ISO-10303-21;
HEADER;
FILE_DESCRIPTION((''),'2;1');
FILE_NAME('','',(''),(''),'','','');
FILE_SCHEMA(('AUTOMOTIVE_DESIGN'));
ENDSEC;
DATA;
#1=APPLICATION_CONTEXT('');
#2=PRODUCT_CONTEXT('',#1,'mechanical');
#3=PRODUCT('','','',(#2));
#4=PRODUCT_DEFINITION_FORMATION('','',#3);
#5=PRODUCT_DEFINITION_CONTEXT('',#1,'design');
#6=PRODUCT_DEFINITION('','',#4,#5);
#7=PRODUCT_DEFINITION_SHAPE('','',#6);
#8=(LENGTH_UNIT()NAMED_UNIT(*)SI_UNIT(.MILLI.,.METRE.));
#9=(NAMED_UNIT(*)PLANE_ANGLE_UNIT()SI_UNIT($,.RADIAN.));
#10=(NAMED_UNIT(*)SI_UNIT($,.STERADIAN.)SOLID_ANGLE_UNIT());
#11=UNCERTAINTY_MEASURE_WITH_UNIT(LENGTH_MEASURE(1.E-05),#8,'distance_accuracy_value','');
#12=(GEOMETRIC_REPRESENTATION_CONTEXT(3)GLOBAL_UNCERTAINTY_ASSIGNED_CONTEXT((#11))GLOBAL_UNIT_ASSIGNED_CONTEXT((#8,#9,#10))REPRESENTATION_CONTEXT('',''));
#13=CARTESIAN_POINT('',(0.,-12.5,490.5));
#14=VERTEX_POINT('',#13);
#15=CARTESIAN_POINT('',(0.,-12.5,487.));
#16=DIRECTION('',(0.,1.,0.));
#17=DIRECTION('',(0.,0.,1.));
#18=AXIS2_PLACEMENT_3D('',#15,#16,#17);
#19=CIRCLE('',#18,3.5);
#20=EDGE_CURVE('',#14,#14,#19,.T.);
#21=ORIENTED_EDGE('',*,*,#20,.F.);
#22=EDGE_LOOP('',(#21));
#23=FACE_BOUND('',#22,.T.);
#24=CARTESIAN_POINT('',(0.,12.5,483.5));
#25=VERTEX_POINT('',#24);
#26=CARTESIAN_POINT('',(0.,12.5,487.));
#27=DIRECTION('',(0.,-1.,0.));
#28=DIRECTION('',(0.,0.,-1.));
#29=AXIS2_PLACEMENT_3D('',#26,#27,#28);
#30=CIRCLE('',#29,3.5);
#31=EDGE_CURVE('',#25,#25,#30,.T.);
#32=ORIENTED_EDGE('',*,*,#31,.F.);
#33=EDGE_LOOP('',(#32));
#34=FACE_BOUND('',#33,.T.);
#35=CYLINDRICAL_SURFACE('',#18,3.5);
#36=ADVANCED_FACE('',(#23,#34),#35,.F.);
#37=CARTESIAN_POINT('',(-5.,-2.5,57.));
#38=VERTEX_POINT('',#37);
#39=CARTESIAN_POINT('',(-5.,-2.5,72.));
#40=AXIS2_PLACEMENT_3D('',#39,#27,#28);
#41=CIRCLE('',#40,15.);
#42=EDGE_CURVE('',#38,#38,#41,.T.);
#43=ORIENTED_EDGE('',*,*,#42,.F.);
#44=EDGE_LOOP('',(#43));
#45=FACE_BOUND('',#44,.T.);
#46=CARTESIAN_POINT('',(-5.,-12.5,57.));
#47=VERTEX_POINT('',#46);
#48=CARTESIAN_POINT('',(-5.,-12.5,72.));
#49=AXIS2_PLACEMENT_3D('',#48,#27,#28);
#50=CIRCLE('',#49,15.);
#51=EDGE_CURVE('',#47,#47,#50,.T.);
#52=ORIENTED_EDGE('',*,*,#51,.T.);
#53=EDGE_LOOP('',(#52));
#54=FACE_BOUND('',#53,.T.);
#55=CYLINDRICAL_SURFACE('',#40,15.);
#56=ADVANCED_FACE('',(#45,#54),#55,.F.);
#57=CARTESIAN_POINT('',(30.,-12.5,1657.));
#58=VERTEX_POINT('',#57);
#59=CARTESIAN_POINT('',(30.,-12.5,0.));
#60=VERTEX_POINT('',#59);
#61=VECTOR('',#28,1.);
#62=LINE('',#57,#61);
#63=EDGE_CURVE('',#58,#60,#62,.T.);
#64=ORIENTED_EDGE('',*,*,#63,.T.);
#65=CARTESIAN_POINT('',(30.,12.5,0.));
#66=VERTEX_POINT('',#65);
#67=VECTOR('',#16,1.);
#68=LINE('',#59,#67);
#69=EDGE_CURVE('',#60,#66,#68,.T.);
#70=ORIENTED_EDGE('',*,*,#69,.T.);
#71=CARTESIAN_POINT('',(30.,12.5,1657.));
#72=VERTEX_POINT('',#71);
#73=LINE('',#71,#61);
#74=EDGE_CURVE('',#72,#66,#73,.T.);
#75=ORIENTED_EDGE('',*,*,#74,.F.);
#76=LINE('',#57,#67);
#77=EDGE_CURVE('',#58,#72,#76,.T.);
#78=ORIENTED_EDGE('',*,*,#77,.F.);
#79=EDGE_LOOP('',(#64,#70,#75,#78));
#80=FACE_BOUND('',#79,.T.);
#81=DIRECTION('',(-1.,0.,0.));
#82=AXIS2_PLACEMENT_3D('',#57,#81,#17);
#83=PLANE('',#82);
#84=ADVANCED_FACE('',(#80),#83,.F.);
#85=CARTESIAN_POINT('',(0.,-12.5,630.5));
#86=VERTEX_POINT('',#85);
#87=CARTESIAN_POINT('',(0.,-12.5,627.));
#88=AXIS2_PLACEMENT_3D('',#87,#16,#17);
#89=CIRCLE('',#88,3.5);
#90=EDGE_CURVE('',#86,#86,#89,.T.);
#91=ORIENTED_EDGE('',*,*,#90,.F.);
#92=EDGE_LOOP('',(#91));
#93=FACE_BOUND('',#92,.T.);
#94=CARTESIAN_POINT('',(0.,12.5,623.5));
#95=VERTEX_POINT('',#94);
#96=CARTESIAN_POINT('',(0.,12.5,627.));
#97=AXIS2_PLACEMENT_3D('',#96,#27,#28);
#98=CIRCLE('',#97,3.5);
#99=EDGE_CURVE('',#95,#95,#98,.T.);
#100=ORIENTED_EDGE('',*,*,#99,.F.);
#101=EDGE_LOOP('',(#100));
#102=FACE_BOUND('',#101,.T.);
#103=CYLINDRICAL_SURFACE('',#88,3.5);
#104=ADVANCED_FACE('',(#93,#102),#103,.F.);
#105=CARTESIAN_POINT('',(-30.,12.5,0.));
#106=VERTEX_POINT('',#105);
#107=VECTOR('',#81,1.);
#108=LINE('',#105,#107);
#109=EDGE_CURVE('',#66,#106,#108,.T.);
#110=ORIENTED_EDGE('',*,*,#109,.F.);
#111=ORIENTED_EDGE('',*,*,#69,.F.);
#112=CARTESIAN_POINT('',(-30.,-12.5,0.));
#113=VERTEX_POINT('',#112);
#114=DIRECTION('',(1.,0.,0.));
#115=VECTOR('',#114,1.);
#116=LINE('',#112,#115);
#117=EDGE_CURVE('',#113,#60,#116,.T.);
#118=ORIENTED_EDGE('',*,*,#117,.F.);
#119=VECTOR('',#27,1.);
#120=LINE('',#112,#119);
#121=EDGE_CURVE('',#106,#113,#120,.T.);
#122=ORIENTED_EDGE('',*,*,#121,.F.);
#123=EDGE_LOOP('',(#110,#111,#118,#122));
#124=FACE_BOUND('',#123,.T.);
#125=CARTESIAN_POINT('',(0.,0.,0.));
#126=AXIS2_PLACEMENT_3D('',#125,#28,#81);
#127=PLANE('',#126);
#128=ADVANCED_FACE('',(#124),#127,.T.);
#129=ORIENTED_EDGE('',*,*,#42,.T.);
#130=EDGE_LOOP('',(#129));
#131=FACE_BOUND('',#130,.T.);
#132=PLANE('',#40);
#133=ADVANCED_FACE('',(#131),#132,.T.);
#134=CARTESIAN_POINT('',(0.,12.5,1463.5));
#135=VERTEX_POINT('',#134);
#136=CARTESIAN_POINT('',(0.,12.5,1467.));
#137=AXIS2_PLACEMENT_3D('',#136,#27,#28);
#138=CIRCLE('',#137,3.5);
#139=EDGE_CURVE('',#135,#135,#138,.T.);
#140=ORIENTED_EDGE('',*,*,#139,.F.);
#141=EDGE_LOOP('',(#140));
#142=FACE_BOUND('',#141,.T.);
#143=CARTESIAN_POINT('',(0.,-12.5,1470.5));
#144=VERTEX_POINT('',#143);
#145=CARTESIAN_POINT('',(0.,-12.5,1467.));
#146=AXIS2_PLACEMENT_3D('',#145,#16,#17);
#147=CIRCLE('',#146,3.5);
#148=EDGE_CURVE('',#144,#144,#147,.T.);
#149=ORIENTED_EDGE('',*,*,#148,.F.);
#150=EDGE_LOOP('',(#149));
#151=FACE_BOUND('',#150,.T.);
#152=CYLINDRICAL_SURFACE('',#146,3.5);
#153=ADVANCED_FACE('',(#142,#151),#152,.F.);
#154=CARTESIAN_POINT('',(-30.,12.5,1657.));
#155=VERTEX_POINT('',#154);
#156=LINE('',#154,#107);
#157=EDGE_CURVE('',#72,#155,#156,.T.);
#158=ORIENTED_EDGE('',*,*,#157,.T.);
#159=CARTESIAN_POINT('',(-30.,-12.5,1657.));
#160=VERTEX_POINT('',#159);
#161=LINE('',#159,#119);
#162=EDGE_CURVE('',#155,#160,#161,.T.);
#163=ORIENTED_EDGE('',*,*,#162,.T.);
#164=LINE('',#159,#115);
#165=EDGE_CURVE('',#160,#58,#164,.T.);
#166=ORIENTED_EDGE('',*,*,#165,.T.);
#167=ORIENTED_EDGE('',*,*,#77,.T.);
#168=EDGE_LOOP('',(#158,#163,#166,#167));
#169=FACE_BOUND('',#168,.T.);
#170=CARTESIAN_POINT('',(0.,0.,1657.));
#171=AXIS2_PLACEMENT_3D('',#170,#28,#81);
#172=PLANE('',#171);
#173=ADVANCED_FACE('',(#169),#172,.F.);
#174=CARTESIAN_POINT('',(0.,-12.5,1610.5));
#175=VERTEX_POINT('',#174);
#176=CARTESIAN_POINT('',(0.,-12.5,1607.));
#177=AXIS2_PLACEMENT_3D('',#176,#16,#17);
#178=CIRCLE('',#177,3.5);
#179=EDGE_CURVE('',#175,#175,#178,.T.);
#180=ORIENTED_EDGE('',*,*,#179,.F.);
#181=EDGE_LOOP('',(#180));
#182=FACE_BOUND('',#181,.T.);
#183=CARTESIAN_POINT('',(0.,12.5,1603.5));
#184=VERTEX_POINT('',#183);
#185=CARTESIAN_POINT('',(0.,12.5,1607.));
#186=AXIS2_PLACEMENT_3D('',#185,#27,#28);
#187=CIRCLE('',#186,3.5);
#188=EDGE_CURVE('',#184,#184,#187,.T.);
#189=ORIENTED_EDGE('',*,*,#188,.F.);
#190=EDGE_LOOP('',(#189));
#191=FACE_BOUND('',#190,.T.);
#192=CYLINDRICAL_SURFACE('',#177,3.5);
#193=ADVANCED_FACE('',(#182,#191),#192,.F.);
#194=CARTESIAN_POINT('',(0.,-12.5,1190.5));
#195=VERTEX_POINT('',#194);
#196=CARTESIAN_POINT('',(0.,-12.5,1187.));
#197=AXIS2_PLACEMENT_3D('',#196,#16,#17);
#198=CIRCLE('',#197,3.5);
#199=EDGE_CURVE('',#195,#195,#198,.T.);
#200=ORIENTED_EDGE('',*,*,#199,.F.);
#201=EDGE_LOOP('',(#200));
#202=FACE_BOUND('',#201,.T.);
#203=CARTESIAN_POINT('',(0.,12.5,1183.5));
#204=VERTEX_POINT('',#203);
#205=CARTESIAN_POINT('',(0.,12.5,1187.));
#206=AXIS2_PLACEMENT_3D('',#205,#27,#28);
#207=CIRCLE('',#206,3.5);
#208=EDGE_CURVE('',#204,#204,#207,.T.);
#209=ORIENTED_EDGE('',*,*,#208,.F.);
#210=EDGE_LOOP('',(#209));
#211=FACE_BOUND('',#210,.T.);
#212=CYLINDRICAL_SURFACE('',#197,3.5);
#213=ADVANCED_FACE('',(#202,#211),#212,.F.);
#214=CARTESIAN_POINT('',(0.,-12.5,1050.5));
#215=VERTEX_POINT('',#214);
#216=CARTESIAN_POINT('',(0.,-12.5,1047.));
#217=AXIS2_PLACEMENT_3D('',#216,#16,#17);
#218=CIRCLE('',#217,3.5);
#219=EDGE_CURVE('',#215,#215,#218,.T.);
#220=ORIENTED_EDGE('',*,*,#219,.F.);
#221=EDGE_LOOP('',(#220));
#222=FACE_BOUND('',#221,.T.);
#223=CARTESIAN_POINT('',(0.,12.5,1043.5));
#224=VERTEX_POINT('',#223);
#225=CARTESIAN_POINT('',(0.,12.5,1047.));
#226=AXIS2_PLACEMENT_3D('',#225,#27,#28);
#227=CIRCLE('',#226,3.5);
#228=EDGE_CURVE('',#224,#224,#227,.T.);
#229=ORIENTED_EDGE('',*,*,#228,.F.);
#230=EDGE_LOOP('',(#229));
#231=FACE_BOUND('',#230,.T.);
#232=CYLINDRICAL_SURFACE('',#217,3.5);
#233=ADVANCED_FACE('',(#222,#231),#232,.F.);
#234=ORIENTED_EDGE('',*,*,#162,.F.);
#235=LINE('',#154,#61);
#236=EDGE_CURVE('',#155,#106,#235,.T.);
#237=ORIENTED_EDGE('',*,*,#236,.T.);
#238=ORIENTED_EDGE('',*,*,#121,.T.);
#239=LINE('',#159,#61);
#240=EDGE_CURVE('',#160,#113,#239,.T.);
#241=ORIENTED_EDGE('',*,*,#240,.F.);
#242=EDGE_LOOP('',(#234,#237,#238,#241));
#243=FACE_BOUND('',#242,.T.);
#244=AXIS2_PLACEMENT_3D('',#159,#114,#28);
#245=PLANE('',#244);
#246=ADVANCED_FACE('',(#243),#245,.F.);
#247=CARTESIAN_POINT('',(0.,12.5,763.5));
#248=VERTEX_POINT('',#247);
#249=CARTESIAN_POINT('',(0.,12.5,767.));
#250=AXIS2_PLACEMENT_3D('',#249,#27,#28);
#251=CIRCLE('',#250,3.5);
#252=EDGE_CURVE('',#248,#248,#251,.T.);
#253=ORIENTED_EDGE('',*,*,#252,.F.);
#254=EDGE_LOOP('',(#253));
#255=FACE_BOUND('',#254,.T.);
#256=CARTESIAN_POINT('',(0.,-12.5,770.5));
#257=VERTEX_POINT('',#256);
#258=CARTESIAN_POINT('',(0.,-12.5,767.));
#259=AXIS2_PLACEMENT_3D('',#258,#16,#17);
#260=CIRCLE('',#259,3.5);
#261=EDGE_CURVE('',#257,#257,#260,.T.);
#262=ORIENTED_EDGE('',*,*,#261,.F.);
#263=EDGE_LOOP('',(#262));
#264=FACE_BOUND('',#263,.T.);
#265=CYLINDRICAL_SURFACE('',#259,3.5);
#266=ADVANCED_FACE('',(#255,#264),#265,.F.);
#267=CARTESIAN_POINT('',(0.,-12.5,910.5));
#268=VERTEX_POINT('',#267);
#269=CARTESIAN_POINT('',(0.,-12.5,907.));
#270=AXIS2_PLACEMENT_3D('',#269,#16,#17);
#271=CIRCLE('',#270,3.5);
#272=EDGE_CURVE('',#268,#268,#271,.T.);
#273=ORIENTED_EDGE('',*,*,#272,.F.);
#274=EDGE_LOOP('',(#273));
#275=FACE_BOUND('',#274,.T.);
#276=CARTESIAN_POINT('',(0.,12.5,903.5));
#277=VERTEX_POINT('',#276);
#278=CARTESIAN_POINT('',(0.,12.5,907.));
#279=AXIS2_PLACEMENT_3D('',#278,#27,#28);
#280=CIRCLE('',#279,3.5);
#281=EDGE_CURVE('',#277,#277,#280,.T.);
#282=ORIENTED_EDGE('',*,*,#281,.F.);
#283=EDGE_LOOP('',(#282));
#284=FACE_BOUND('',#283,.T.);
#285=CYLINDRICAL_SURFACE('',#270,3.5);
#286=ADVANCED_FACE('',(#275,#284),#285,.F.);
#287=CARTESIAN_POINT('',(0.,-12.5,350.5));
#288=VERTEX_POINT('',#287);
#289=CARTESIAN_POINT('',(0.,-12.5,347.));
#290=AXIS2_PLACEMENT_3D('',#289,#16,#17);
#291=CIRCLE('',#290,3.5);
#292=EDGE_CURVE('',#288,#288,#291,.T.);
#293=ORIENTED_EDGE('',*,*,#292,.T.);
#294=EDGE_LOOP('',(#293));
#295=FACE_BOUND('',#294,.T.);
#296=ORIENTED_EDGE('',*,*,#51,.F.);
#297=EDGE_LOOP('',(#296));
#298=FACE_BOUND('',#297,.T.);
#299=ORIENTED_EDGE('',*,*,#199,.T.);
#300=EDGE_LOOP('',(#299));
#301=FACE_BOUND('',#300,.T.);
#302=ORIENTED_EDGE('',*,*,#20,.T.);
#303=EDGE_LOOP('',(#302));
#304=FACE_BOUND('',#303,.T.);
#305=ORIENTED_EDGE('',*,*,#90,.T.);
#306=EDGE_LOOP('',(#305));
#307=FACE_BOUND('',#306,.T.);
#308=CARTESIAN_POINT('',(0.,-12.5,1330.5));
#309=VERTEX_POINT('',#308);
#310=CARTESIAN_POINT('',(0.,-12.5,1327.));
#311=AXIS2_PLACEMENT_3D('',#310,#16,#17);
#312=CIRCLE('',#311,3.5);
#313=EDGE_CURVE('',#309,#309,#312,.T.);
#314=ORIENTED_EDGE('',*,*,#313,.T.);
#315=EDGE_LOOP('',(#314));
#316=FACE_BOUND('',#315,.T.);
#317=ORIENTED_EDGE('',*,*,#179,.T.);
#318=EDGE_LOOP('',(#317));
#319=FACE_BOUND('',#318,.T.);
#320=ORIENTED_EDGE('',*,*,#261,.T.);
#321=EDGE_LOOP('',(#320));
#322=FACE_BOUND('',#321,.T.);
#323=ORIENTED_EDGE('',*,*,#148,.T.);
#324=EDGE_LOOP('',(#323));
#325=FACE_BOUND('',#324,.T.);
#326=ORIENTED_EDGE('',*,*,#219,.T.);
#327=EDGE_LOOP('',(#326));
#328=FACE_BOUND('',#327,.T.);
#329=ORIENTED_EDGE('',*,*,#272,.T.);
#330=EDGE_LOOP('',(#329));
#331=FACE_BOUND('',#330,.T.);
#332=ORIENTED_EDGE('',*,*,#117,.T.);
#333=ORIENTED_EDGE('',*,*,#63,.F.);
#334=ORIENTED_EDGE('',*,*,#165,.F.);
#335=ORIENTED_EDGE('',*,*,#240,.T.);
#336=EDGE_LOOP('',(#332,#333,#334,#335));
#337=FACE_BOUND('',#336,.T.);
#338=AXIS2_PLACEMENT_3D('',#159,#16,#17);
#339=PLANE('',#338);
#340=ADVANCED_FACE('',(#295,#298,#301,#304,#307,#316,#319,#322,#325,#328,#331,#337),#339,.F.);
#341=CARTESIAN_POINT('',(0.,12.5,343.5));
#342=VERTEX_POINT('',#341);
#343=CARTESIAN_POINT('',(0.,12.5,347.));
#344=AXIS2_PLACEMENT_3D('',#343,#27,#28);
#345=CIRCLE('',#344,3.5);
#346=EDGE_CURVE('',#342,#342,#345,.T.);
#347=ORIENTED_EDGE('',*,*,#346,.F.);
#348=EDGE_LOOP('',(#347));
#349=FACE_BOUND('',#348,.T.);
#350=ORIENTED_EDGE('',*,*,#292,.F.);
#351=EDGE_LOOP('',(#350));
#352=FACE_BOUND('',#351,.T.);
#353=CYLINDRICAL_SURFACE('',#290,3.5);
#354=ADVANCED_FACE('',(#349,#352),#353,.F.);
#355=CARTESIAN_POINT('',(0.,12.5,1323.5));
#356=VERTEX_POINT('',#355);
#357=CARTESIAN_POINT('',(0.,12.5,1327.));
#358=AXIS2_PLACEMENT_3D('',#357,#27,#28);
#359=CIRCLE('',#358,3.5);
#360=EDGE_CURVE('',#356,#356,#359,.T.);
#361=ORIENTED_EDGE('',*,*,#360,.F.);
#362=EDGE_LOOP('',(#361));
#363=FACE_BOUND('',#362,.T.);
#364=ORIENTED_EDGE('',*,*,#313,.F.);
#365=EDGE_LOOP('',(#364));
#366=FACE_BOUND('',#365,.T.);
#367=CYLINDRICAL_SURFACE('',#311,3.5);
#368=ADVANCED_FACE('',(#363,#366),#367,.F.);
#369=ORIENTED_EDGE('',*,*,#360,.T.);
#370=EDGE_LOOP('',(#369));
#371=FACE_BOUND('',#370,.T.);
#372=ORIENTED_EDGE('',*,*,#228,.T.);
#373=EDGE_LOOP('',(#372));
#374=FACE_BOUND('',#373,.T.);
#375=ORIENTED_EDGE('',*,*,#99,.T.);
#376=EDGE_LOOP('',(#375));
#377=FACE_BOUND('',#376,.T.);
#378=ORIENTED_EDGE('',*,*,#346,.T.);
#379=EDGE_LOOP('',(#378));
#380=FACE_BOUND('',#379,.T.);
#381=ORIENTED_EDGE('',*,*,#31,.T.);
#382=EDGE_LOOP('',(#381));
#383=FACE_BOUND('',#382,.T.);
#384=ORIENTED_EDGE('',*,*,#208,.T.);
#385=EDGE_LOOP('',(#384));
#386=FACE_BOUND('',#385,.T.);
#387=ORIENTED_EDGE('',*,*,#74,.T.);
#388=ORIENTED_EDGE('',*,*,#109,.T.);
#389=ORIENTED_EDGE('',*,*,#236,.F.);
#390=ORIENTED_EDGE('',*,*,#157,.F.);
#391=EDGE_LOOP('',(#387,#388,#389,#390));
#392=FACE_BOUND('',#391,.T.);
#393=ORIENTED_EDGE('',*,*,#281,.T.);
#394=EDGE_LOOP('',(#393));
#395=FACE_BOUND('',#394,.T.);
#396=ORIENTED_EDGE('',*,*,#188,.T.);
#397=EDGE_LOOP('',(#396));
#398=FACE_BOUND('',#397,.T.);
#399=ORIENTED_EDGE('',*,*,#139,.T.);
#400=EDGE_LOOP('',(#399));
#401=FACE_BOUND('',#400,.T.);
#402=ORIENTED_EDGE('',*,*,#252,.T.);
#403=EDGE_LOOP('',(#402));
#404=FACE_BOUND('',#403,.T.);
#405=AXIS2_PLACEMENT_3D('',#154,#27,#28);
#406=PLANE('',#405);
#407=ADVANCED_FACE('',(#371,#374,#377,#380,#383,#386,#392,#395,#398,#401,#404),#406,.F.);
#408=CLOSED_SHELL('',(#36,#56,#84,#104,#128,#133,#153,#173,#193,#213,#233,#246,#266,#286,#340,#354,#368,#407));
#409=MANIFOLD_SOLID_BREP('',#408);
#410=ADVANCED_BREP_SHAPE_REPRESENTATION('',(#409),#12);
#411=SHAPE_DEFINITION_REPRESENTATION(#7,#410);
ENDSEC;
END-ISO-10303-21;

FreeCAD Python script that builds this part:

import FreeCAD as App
import Part
import Sketcher
from FreeCAD import Vector
Q = App.Units.Quantity

doc = App.newDocument("Part")
body = doc.addObject("PartDesign::Body", "Body")

sketch1 = doc.addObject("Sketcher::SketchObject", "Sketch")
body.addObject(sketch1)
sketch1.AttachmentSupport = (doc.XY_Plane, [""])
sketch1.MapMode = "FlatFace"
sketch1.addGeometry(Part.LineSegment(Vector(-30, 12, 0), Vector(-30, -12, 0)), False)
sketch1.addGeometry(Part.LineSegment(Vector(-30, -12, 0), Vector(30, -12, 0)), False)
sketch1.addGeometry(Part.LineSegment(Vector(30, -12, 0), Vector(30, 12, 0)), False)
sketch1.addGeometry(Part.LineSegment(Vector(30, 12, 0), Vector(-30, 12, 0)), False)
sketch1.addConstraint(Sketcher.Constraint("Coincident", 0, 2, 1, 1))
sketch1.addConstraint(Sketcher.Constraint("Coincident", 1, 2, 2, 1))
sketch1.addConstraint(Sketcher.Constraint("Coincident", 2, 2, 3, 1))
sketch1.addConstraint(Sketcher.Constraint("Coincident", 3, 2, 0, 1))
sketch1.addConstraint(Sketcher.Constraint("Vertical", 0))
sketch1.addConstraint(Sketcher.Constraint("Horizontal", 1))
sketch1.addConstraint(Sketcher.Constraint("Vertical", 2))
sketch1.addConstraint(Sketcher.Constraint("Horizontal", 3))
sketch1.addConstraint(Sketcher.Constraint("Symmetric", 0, 2, 2, 2, -1, 1))
sketch1.addConstraint(Sketcher.Constraint("DistanceX", 1, 1, 1, 2, Q("60 mm")))
sketch1.addConstraint(Sketcher.Constraint("DistanceY", 0, 2, 0, 1, Q("25 mm")))
pad1 = doc.addObject("PartDesign::Pad", "Pad")
body.addObject(pad1)
pad1.Profile = sketch1
pad1.Length = 1657

sketch2 = doc.addObject("Sketcher::SketchObject", "Sketch001")
body.addObject(sketch2)
sketch2.AttachmentSupport = (doc.XZ_Plane, [""])
sketch2.MapMode = "FlatFace"
sketch2.AttachmentOffset = App.Placement(Vector(0, 0, 12.5), App.Rotation())
sketch2.addGeometry(Part.Circle(Vector(-5, 72, 0), Vector(0, 0, 1), 15), False)
sketch2.addConstraint(Sketcher.Constraint("Diameter", 0, Q("30 mm")))
sketch2.addConstraint(Sketcher.Constraint("DistanceX", 0, 3, -1, 1, Q("5 mm")))
sketch2.addConstraint(Sketcher.Constraint("DistanceY", -1, 1, 0, 3, Q("72 mm")))
pocket1 = doc.addObject("PartDesign::Pocket", "Pocket")
body.addObject(pocket1)
pocket1.Profile = sketch2
pocket1.Length = 10

sketch3 = doc.addObject("Sketcher::SketchObject", "Sketch002")
body.addObject(sketch3)
sketch3.AttachmentSupport = (doc.XZ_Plane, [""])
sketch3.MapMode = "FlatFace"
sketch3.AttachmentOffset = App.Placement(Vector(0, 0, -12.5), App.Rotation())
sketch3.addGeometry(Part.Circle(Vector(0, 1607, 0), Vector(0, 0, 1), 3.5), False)
sketch3.addGeometry(Part.Circle(Vector(0, 1467, 0), Vector(0, 0, 1), 3.5), False)
sketch3.addGeometry(Part.Circle(Vector(0, 1327, 0), Vector(0, 0, 1), 3.5), False)
sketch3.addGeometry(Part.Circle(Vector(0, 1187, 0), Vector(0, 0, 1), 3.5), False)
sketch3.addGeometry(Part.Circle(Vector(0, 1047, 0), Vector(0, 0, 1), 3.5), False)
sketch3.addGeometry(Part.Circle(Vector(0, 907, 0), Vector(0, 0, 1), 3.5), False)
sketch3.addGeometry(Part.Circle(Vector(0, 767, 0), Vector(0, 0, 1), 3.5), False)
sketch3.addGeometry(Part.Circle(Vector(0, 627, 0), Vector(0, 0, 1), 3.5), False)
sketch3.addGeometry(Part.Circle(Vector(0, 487, 0), Vector(0, 0, 1), 3.5), False)
sketch3.addGeometry(Part.Circle(Vector(0, 347, 0), Vector(0, 0, 1), 3.5), False)
sketch3.addConstraint(Sketcher.Constraint("Equal", 0, 1))
sketch3.addConstraint(Sketcher.Constraint("Equal", 1, 2))
sketch3.addConstraint(Sketcher.Constraint("Equal", 2, 3))
sketch3.addConstraint(Sketcher.Constraint("Equal", 3, 4))
sketch3.addConstraint(Sketcher.Constraint("Equal", 4, 5))
sketch3.addConstraint(Sketcher.Constraint("Equal", 5, 6))
sketch3.addConstraint(Sketcher.Constraint("Equal", 6, 7))
sketch3.addConstraint(Sketcher.Constraint("Equal", 7, 8))
sketch3.addConstraint(Sketcher.Constraint("Equal", 8, 9))
sketch3.addConstraint(Sketcher.Constraint("PointOnObject", 0, 3, -2))
sketch3.addConstraint(Sketcher.Constraint("PointOnObject", 1, 3, -2))
sketch3.addConstraint(Sketcher.Constraint("PointOnObject", 2, 3, -2))
sketch3.addConstraint(Sketcher.Constraint("PointOnObject", 3, 3, -2))
sketch3.addConstraint(Sketcher.Constraint("PointOnObject", 4, 3, -2))
sketch3.addConstraint(Sketcher.Constraint("PointOnObject", 5, 3, -2))
sketch3.addConstraint(Sketcher.Constraint("PointOnObject", 6, 3, -2))
sketch3.addConstraint(Sketcher.Constraint("PointOnObject", 7, 3, -2))
sketch3.addConstraint(Sketcher.Constraint("PointOnObject", 8, 3, -2))
sketch3.addConstraint(Sketcher.Constraint("PointOnObject", 9, 3, -2))
sketch3.addConstraint(Sketcher.Constraint("Diameter", 0, Q("7 mm")))
sketch3.addConstraint(Sketcher.Constraint("DistanceY", -1, 1, 0, 3, Q("1607 mm")))
sketch3.addConstraint(Sketcher.Constraint("DistanceY", -1, 1, 1, 3, Q("1467 mm")))
sketch3.addConstraint(Sketcher.Constraint("DistanceY", -1, 1, 2, 3, Q("1327 mm")))
sketch3.addConstraint(Sketcher.Constraint("DistanceY", -1, 1, 3, 3, Q("1187 mm")))
sketch3.addConstraint(Sketcher.Constraint("DistanceY", -1, 1, 4, 3, Q("1047 mm")))
sketch3.addConstraint(Sketcher.Constraint("DistanceY", -1, 1, 5, 3, Q("907 mm")))
sketch3.addConstraint(Sketcher.Constraint("DistanceY", -1, 1, 6, 3, Q("767 mm")))
sketch3.addConstraint(Sketcher.Constraint("DistanceY", -1, 1, 7, 3, Q("627 mm")))
sketch3.addConstraint(Sketcher.Constraint("DistanceY", -1, 1, 8, 3, Q("487 mm")))
sketch3.addConstraint(Sketcher.Constraint("DistanceY", -1, 1, 9, 3, Q("347 mm")))
pocket2 = doc.addObject("PartDesign::Pocket", "Pocket001")
body.addObject(pocket2)
pocket2.Profile = sketch3
pocket2.Type = "ThroughAll"
pocket2.Midplane = True

doc.recompute()
